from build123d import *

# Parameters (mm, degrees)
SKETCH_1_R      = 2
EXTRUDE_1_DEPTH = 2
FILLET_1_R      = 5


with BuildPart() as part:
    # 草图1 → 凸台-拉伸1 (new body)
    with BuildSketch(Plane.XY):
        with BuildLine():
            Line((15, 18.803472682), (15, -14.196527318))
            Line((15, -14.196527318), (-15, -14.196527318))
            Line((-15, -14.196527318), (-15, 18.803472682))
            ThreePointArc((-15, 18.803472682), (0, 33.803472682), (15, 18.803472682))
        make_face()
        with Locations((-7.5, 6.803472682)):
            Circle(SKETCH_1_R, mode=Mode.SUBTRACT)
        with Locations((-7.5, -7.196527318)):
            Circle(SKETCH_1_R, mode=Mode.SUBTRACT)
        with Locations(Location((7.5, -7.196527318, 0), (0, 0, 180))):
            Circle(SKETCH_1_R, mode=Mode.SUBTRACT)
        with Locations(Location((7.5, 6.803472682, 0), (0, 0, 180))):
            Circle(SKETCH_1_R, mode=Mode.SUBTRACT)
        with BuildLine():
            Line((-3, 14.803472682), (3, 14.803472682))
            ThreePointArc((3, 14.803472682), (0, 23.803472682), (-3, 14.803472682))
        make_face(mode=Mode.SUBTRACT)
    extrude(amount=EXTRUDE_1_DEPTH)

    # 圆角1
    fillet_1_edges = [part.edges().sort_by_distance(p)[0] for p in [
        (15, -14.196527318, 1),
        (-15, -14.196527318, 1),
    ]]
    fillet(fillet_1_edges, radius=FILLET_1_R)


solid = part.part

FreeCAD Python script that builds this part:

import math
import FreeCAD as App
import Part
import Sketcher
from FreeCAD import Vector


def edges_at(feature, points):
    """Names of the edges that pass closest to the given points."""
    edges = feature.Shape.Edges
    near = lambda p: min(range(len(edges)), key=lambda i: edges[i].distToShape(Part.Vertex(*p))[0])
    return sorted({f"Edge{near(p) + 1}" for p in points})

doc = App.newDocument("Part")
body = doc.addObject("PartDesign::Body", "Body")

sketch1 = doc.addObject("Sketcher::SketchObject", "Sketch")
body.addObject(sketch1)
sketch1.AttachmentSupport = (doc.XY_Plane, [""])
sketch1.MapMode = "FlatFace"
sketch1.addGeometry([
    Part.LineSegment(Vector(15, -14.196527, 0), Vector(15, 18.803473, 0)),
    Part.ArcOfCircle(Part.Circle(Vector(0, 18.803473, 0), Vector(0, 0, 1), 15), math.radians(0), math.radians(180)),
    Part.LineSegment(Vector(-15, 18.803473, 0), Vector(-15, -14.196527, 0)),
    Part.LineSegment(Vector(-15, -14.196527, 0), Vector(15, -14.196527, 0)),
    Part.Circle(Vector(7.5, -7.196527, 0), Vector(0, 0, 1), 2),
    Part.Circle(Vector(7.5, 6.803473, 0), Vector(0, 0, 1), 2),
    Part.Circle(Vector(-7.5, -7.196527, 0), Vector(0, 0, 1), 2),
    Part.Circle(Vector(-7.5, 6.803473, 0), Vector(0, 0, 1), 2),
    Part.ArcOfCircle(Part.Circle(Vector(0, 18.803473, 0), Vector(0, 0, 1), 5), math.radians(-53.130102), math.radians(233.130102)),
    Part.LineSegment(Vector(3, 14.803473, 0), Vector(-3, 14.803473, 0)),
], False)
sketch1.addConstraint([
    Sketcher.Constraint("Tangent", 0, 2, 1, 1),
    Sketcher.Constraint("Tangent", 1, 2, 2, 1),
    Sketcher.Constraint("Coincident", 2, 2, 3, 1),
    Sketcher.Constraint("Coincident", 3, 2, 0, 1),
    Sketcher.Constraint("Coincident", 8, 1, 9, 1),
    Sketcher.Constraint("Coincident", 9, 2, 8, 2),
    Sketcher.Constraint("Vertical", 0),
    Sketcher.Constraint("Vertical", 2),
    Sketcher.Constraint("Horizontal", 3),
    Sketcher.Constraint("Horizontal", 9),
    Sketcher.Constraint("Coincident", 8, 3, 1, 3),
    Sketcher.Constraint("Equal", 4, 5),
    Sketcher.Constraint("Equal", 5, 6),
    Sketcher.Constraint("Equal", 6, 7),
    Sketcher.Constraint("Symmetric", 4, 3, 6, 3, -2),
    Sketcher.Constraint("Symmetric", 5, 3, 7, 3, -2),
    Sketcher.Constraint("PointOnObject", 1, 3, -2),
    Sketcher.Constraint("Vertical", 4, 3, 5, 3),
    Sketcher.Constraint("Diameter", 4, 4.0),
    Sketcher.Constraint("Radius", 1, 15.0),
    Sketcher.Constraint("Radius", 8, 5.0),
    Sketcher.Constraint("DistanceX", 9, 2, 9, 1, 6.0),
    Sketcher.Constraint("DistanceY", 0, 1, 0, 2, 33.0),
    Sketcher.Constraint("DistanceY", 4, 3, 1, 3, 26.0),
    Sketcher.Constraint("DistanceY", 4, 3, 5, 3, 14.0),
    Sketcher.Constraint("DistanceX", 6, 3, 4, 3, 15.0),
    Sketcher.Constraint("DistanceY", -1, 1, 1, 3, 18.803473),
])
pad1 = doc.addObject("PartDesign::Pad", "Pad")
body.addObject(pad1)
pad1.Profile = sketch1
pad1.Length = 2
doc.recompute()

fillet = doc.addObject("PartDesign::Fillet", "Fillet")
body.addObject(fillet)
fillet.Base = (pad1, edges_at(pad1, [(15, -14.197, 1), (-15, -14.197, 1)]))
fillet.Radius = 5

doc.recompute()
